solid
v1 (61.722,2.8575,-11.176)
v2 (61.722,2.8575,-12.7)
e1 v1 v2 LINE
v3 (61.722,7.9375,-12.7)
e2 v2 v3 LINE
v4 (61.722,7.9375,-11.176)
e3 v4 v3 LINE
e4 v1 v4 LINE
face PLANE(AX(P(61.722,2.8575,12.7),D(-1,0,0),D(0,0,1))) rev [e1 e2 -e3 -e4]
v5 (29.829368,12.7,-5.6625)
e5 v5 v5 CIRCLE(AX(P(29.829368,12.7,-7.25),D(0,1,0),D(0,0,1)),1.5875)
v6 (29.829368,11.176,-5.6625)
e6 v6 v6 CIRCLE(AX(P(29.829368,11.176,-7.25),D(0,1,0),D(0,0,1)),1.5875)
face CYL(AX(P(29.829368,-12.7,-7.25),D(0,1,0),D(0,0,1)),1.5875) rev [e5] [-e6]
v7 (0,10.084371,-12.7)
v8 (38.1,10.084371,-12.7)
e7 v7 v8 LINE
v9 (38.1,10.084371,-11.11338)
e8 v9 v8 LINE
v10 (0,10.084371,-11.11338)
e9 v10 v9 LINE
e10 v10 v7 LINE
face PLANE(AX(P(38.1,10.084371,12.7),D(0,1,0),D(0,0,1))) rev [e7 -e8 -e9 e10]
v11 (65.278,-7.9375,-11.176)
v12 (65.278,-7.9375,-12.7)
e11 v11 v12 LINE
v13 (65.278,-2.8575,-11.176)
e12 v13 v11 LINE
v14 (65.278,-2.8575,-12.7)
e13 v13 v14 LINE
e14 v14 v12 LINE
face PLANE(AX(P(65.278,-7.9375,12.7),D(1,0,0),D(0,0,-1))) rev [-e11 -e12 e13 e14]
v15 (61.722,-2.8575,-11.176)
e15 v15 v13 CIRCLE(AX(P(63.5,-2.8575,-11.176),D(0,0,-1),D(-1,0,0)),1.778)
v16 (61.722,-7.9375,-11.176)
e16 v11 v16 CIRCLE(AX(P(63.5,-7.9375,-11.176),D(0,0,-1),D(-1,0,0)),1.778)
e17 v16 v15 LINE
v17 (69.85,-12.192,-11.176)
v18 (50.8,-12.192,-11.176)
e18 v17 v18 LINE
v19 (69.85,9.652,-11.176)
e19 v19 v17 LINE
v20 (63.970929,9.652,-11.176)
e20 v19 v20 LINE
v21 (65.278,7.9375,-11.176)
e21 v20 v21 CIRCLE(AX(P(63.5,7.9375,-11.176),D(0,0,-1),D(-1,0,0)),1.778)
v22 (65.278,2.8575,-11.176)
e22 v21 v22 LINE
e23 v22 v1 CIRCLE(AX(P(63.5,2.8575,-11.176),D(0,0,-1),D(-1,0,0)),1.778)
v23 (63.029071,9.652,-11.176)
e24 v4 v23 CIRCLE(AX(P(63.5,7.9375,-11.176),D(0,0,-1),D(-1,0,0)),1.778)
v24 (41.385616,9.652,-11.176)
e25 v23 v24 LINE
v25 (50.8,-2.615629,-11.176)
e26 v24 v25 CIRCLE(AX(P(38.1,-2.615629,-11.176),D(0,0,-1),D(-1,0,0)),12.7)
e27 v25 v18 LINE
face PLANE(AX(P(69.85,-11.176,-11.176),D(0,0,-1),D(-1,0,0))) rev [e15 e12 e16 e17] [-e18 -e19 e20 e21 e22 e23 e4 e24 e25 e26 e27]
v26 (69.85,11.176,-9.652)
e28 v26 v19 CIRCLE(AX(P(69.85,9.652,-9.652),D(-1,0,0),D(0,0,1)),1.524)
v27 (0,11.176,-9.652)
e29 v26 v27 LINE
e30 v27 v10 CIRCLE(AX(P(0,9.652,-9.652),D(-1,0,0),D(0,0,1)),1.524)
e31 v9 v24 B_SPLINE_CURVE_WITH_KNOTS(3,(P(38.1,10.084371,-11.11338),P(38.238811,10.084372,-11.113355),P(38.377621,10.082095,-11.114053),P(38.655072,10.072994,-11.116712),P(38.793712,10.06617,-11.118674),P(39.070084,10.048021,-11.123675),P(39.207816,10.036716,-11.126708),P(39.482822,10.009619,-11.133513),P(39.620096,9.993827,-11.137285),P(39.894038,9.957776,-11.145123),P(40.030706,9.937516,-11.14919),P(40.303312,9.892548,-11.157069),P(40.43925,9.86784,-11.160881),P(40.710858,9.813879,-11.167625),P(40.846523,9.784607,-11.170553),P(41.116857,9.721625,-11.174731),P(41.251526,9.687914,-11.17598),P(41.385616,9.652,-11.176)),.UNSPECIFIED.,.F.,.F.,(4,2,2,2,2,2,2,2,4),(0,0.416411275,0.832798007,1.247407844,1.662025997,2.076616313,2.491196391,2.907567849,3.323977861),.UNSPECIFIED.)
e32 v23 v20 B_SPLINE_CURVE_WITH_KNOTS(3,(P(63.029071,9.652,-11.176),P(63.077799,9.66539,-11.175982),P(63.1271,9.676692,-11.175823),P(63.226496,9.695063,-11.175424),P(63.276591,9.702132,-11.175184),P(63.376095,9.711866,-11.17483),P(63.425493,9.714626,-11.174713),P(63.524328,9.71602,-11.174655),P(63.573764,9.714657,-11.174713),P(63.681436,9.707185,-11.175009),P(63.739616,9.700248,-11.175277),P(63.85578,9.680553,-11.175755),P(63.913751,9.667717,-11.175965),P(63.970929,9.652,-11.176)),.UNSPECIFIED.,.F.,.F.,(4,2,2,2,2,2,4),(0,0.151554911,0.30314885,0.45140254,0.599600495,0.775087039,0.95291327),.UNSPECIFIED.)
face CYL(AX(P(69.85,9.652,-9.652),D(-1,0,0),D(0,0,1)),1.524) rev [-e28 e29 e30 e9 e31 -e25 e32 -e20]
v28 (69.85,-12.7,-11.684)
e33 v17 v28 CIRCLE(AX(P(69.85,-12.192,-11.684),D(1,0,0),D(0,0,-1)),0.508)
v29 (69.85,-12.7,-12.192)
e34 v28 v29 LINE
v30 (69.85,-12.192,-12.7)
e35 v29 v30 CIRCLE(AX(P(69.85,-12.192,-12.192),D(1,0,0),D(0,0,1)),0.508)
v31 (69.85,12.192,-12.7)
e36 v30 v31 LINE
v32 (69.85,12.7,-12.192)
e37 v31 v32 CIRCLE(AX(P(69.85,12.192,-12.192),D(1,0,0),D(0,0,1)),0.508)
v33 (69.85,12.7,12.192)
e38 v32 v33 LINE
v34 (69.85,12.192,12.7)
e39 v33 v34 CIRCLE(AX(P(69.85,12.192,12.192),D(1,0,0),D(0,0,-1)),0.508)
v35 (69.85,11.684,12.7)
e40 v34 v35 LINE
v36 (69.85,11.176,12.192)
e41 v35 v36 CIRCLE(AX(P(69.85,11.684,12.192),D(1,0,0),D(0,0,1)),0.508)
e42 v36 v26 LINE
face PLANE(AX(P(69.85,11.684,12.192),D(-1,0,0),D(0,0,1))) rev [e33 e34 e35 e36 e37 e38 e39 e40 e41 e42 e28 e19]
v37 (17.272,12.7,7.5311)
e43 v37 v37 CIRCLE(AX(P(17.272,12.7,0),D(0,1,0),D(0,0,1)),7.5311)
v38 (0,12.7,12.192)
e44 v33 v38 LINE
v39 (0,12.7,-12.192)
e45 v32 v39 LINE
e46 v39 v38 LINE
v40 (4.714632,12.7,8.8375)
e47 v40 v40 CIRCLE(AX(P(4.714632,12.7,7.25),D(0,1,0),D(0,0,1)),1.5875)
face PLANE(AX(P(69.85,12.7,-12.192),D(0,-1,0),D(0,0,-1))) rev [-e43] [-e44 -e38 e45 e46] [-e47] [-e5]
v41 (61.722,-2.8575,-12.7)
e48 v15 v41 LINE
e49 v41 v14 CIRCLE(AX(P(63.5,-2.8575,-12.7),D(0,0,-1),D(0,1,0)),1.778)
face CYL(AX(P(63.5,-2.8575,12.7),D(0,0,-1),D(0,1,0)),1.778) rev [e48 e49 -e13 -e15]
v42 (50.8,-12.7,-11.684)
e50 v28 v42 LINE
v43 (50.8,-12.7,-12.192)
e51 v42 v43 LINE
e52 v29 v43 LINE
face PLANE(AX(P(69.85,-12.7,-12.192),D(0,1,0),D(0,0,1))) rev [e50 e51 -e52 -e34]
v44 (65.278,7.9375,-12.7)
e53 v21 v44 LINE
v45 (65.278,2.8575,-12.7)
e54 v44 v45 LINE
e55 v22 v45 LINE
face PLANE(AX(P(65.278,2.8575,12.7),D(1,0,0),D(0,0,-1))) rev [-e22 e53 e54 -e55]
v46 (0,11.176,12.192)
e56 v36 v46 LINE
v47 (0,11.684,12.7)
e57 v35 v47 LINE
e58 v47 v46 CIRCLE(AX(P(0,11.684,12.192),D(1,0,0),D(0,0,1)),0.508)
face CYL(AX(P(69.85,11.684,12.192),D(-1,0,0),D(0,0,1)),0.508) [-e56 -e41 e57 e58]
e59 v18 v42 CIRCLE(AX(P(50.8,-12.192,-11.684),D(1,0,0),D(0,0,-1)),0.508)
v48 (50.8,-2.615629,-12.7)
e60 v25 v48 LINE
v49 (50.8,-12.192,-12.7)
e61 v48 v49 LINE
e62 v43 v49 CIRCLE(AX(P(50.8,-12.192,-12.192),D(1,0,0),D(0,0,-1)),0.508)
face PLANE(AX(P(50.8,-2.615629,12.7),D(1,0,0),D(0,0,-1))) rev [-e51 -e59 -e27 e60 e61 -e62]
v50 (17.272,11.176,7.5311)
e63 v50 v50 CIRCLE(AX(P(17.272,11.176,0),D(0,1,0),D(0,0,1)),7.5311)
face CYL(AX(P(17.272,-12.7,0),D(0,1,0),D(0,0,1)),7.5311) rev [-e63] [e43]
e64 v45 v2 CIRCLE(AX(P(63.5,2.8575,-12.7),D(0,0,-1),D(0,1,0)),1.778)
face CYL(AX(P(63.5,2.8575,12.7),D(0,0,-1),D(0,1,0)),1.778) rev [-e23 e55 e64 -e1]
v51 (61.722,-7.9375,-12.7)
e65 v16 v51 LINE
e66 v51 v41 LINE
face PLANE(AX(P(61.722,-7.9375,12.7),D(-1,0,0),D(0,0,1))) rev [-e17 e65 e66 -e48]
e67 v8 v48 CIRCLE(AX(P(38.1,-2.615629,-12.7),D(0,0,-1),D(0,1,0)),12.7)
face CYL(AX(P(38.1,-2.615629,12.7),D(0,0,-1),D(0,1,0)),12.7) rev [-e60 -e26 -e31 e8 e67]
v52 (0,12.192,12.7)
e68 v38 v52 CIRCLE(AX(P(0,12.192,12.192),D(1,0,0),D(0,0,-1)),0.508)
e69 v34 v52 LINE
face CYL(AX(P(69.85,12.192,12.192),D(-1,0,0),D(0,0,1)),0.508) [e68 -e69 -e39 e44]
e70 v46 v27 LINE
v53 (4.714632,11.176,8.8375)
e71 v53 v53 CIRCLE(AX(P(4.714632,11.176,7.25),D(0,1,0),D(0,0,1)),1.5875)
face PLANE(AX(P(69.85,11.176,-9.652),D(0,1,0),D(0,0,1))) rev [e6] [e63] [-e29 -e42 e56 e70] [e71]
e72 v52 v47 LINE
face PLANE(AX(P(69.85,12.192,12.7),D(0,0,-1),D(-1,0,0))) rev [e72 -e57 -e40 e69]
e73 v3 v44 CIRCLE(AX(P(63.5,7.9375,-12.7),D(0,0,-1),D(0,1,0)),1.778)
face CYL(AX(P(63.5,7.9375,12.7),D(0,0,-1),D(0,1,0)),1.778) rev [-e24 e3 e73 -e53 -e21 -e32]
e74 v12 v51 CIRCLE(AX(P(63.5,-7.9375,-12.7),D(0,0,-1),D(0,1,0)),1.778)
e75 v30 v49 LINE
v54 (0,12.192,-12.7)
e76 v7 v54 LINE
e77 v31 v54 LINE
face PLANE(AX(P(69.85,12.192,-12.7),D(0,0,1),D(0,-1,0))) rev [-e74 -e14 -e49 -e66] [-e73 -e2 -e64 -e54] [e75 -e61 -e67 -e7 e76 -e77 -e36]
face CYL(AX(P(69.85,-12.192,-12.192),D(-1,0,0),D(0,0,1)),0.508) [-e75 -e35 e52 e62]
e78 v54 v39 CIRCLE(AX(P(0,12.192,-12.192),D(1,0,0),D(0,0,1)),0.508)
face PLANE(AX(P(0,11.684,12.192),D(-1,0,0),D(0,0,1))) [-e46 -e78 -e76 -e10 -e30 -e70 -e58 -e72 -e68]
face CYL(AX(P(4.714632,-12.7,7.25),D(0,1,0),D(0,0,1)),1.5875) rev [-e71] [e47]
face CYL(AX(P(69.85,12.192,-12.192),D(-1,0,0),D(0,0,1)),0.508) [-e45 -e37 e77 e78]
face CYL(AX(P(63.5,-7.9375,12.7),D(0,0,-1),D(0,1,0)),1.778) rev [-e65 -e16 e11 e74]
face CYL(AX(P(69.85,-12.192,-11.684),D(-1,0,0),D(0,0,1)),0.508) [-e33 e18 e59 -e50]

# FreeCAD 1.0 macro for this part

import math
import FreeCAD as App
import Part
import Sketcher

V = App.Vector
Q = App.Units.Quantity

doc = App.newDocument("Part")
params = doc.addObject("Spreadsheet::Sheet", "Params")
for row, (alias, value) in enumerate([
    ("sketch1_radius", "0.06 in"),
    ("sketch1_radius2", "0.02 in"),
    ("sketch1_width", "0.86 in"),
    ("sketch1_width2", "0.96 in"),
    ("pad1_length", "2.75 in"),
    ("sketch2_diameter", "0.593 in"),
    ("sketch2_diameter2", "0.125 in"),
    ("sketch3_radius", "0.5 in"),
    ("sketch3_width", "2 in"),
    ("sketch4_radius", "0.07 in"),
    ("sketch4_height", "0.2 in"),
], start=1):
    params.set(f"A{row}", alias)
    params.set(f"B{row}", "=" + value)
    params.setAlias(f"B{row}", alias)

body = doc.addObject("PartDesign::Body", "Body")

sketch1 = body.newObject("Sketcher::SketchObject", "Sketch")
sketch1.AttachmentSupport = (doc.getObject("YZ_Plane"), [""])
sketch1.MapMode = "FlatFace"
sketch1.addGeometry([
    Part.LineSegment(V(11.176, 12.192, 0), V(11.176, -9.652, 0)),
    Part.ArcOfCircle(Part.Circle(V(9.652, -9.652, 0), V(0, 0, 1), 1.524), math.radians(-90), math.radians(0)),
    Part.LineSegment(V(9.652, -11.176, 0), V(-12.192, -11.176, 0)),
    Part.ArcOfCircle(Part.Circle(V(-12.192, -11.684, 0), V(0, 0, 1), 0.508), math.radians(90), math.radians(180)),
    Part.LineSegment(V(-12.7, -11.684, 0), V(-12.7, -12.192, 0)),
    Part.ArcOfCircle(Part.Circle(V(-12.192, -12.192, 0), V(0, 0, 1), 0.508), math.radians(180), math.radians(270)),
    Part.LineSegment(V(-12.192, -12.7, 0), V(12.192, -12.7, 0)),
    Part.ArcOfCircle(Part.Circle(V(12.192, -12.192, 0), V(0, 0, 1), 0.508), math.radians(-90), math.radians(0)),
    Part.LineSegment(V(12.7, -12.192, 0), V(12.7, 12.192, 0)),
    Part.ArcOfCircle(Part.Circle(V(12.192, 12.192, 0), V(0, 0, 1), 0.508), math.radians(0), math.radians(90)),
    Part.LineSegment(V(12.192, 12.7, 0), V(11.684, 12.7, 0)),
    Part.ArcOfCircle(Part.Circle(V(11.684, 12.192, 0), V(0, 0, 1), 0.508), math.radians(90), math.radians(180)),
], False)
sketch1.addConstraint([
    Sketcher.Constraint("Tangent", 0, 2, 1, 2),
    Sketcher.Constraint("Tangent", 1, 1, 2, 1),
    Sketcher.Constraint("Tangent", 2, 2, 3, 1),
    Sketcher.Constraint("Tangent", 3, 2, 4, 1),
    Sketcher.Constraint("Tangent", 4, 2, 5, 1),
    Sketcher.Constraint("Tangent", 5, 2, 6, 1),
    Sketcher.Constraint("Tangent", 6, 2, 7, 1),
    Sketcher.Constraint("Tangent", 7, 2, 8, 1),
    Sketcher.Constraint("Tangent", 8, 2, 9, 1),
    Sketcher.Constraint("Tangent", 9, 2, 10, 1),
    Sketcher.Constraint("Tangent", 10, 2, 11, 1),
    Sketcher.Constraint("Tangent", 11, 2, 0, 1),
    Sketcher.Constraint("Vertical", 0),
    Sketcher.Constraint("Horizontal", 2),
    Sketcher.Constraint("Vertical", 4),
    Sketcher.Constraint("Horizontal", 6),
    Sketcher.Constraint("Vertical", 8),
    Sketcher.Constraint("Horizontal", 10),
    Sketcher.Constraint("Equal", 3, 5),
    Sketcher.Constraint("Equal", 5, 7),
    Sketcher.Constraint("Equal", 7, 9),
    Sketcher.Constraint("Equal", 9, 11),
    Sketcher.Constraint("Symmetric", 5, 3, 9, 3, -1, 1),
    Sketcher.Constraint("Equal", 2, 0),
    Sketcher.Constraint("Equal", 10, 4),
    Sketcher.Constraint("Radius", 1, Q("0.06 in")),
    Sketcher.Constraint("Radius", 3, Q("0.02 in")),
    Sketcher.Constraint("DistanceX", 2, 2, 2, 1, Q("0.86 in")),
    Sketcher.Constraint("DistanceX", 6, 1, 6, 2, Q("0.96 in")),
])
sketch1.setExpression("Constraints[25]", "Params.sketch1_radius")
sketch1.setExpression("Constraints[26]", "Params.sketch1_radius2")
sketch1.setExpression("Constraints[27]", "Params.sketch1_width")
sketch1.setExpression("Constraints[28]", "Params.sketch1_width2")
pad1 = body.newObject("PartDesign::Pad", "Pad")
pad1.Profile = sketch1
pad1.setExpression("Length", "Params.pad1_length")

sketch2 = body.newObject("Sketcher::SketchObject", "Sketch001")
sketch2.AttachmentSupport = (doc.getObject("XZ_Plane"), [""])
sketch2.MapMode = "FlatFace"
sketch2.AttachmentOffset = App.Placement(V(0, 0, -0.5 * 25.4), App.Rotation())
sketch2.addGeometry([
    Part.Circle(V(17.272, 0, 0), V(0, 0, 1), 7.5311),
    Part.Circle(V(29.829368, -7.25, 0), V(0, 0, 1), 1.5875),
    Part.Circle(V(4.714632, 7.25, 0), V(0, 0, 1), 1.5875),
], False)
sketch2.addConstraint([
    Sketcher.Constraint("Equal", 1, 2),
    Sketcher.Constraint("PointOnObject", 0, 3, -1),
    Sketcher.Constraint("Diameter", 0, Q("0.593 in")),
    Sketcher.Constraint("Diameter", 1, Q("0.125 in")),
    Sketcher.Constraint("DistanceX", -1, 1, 0, 3, Q("0.68 in")),
    Sketcher.Constraint("DistanceY", 1, 3, -1, 1, Q("7.25 mm")),
    Sketcher.Constraint("DistanceY", -1, 1, 2, 3, Q("7.25 mm")),
    Sketcher.Constraint("DistanceX", -1, 1, 1, 3, Q("29.829368 mm")),
    Sketcher.Constraint("DistanceX", -1, 1, 2, 3, Q("4.714632 mm")),
])
sketch2.setExpression("Constraints[2]", "Params.sketch2_diameter")
sketch2.setExpression("Constraints[3]", "Params.sketch2_diameter2")
pocket1 = body.newObject("PartDesign::Pocket", "Pocket")
pocket1.Profile = sketch2
pocket1.Type = "ThroughAll"
pocket1.Reversed = True

sketch3 = body.newObject("Sketcher::SketchObject", "Sketch002")
sketch3.AttachmentSupport = (doc.getObject("XY_Plane"), [""])
sketch3.MapMode = "FlatFace"
sketch3.AttachmentOffset = App.Placement(V(0, 0, -0.5 * 25.4), App.Rotation())
sketch3.addGeometry([
    Part.LineSegment(V(0, 10.084371, 0), V(38.1, 10.084371, 0)),
    Part.ArcOfCircle(Part.Circle(V(38.1, -2.615629, 0), V(0, 0, 1), 12.7), math.radians(0), math.radians(90)),
    Part.LineSegment(V(50.8, -2.615629, 0), V(50.8, -15.315629, 0)),
    Part.LineSegment(V(50.8, -15.315629, 0), V(0, -15.315629, 0)),
    Part.ArcOfCircle(Part.Circle(V(0, -2.615629, 0), V(0, 0, 1), 12.7), math.radians(90), math.radians(270)),
], False)
sketch3.addConstraint([
    Sketcher.Constraint("Tangent", 0, 2, 1, 2),
    Sketcher.Constraint("Tangent", 1, 1, 2, 1),
    Sketcher.Constraint("Coincident", 2, 2, 3, 1),
    Sketcher.Constraint("Tangent", 3, 2, 4, 2),
    Sketcher.Constraint("Tangent", 4, 1, 0, 1),
    Sketcher.Constraint("Horizontal", 0),
    Sketcher.Constraint("Vertical", 2),
    Sketcher.Constraint("Horizontal", 3),
    Sketcher.Constraint("Equal", 1, 4),
    Sketcher.Constraint("PointOnObject", 4, 3, -2),
    Sketcher.Constraint("Radius", 1, Q("0.5 in")),
    Sketcher.Constraint("DistanceX", 3, 2, 3, 1, Q("2 in")),
    Sketcher.Constraint("DistanceY", 1, 3, -1, 1, Q("2.615629 mm")),
])
sketch3.setExpression("Constraints[10]", "Params.sketch3_radius")
sketch3.setExpression("Constraints[11]", "Params.sketch3_width")
pocket2 = body.newObject("PartDesign::Pocket", "Pocket001")
pocket2.Profile = sketch3
pocket2.Type = "ThroughAll"
pocket2.Reversed = True

sketch4 = body.newObject("Sketcher::SketchObject", "Sketch003")
sketch4.AttachmentSupport = (doc.getObject("XY_Plane"), [""])
sketch4.MapMode = "FlatFace"
sketch4.AttachmentOffset = App.Placement(V(0, 0, -0.5 * 25.4), App.Rotation())
sketch4.addGeometry([
    Part.LineSegment(V(65.278, -2.8575, 0), V(65.278, -7.9375, 0)),
    Part.ArcOfCircle(Part.Circle(V(63.5, -7.9375, 0), V(0, 0, 1), 1.778), math.radians(180), math.radians(360)),
    Part.LineSegment(V(61.722, -7.9375, 0), V(61.722, -2.8575, 0)),
    Part.ArcOfCircle(Part.Circle(V(63.5, -2.8575, 0), V(0, 0, 1), 1.778), math.radians(0), math.radians(180)),
    Part.LineSegment(V(65.278, 7.9375, 0), V(65.278, 2.8575, 0)),
    Part.ArcOfCircle(Part.Circle(V(63.5, 2.8575, 0), V(0, 0, 1), 1.778), math.radians(180), math.radians(360)),
    Part.LineSegment(V(61.722, 2.8575, 0), V(61.722, 7.9375, 0)),
    Part.ArcOfCircle(Part.Circle(V(63.5, 7.9375, 0), V(0, 0, 1), 1.778), math.radians(0), math.radians(180)),
], False)
sketch4.addConstraint([
    Sketcher.Constraint("Tangent", 0, 2, 1, 2),
    Sketcher.Constraint("Tangent", 1, 1, 2, 1),
    Sketcher.Constraint("Tangent", 2, 2, 3, 2),
    Sketcher.Constraint("Tangent", 3, 1, 0, 1),
    Sketcher.Constraint("Tangent", 4, 2, 5, 2),
    Sketcher.Constraint("Tangent", 5, 1, 6, 1),
    Sketcher.Constraint("Tangent", 6, 2, 7, 2),
    Sketcher.Constraint("Tangent", 7, 1, 4, 1),
    Sketcher.Constraint("Vertical", 0),
    Sketcher.Constraint("Vertical", 2),
    Sketcher.Constraint("Vertical", 4),
    Sketcher.Constraint("Vertical", 6),
    Sketcher.Constraint("Equal", 3, 5),
    Sketcher.Constraint("Symmetric", 3, 3, 5, 3, -1),
    Sketcher.Constraint("Equal", 2, 4),
    Sketcher.Constraint("Radius", 1, Q("0.07 in")),
    Sketcher.Constraint("DistanceY", 0, 2, 0, 1, Q("0.2 in")),
    Sketcher.Constraint("DistanceX", -1, 1, 1, 3, Q("2.5 in")),
    Sketcher.Constraint("DistanceY", 1, 3, -1, 1, Q("0.3125 in")),
])
sketch4.setExpression("Constraints[15]", "Params.sketch4_radius")
sketch4.setExpression("Constraints[16]", "Params.sketch4_height")
pocket3 = body.newObject("PartDesign::Pocket", "Pocket002")
pocket3.Profile = sketch4
pocket3.Type = "ThroughAll"
pocket3.Reversed = True

doc.recompute()
